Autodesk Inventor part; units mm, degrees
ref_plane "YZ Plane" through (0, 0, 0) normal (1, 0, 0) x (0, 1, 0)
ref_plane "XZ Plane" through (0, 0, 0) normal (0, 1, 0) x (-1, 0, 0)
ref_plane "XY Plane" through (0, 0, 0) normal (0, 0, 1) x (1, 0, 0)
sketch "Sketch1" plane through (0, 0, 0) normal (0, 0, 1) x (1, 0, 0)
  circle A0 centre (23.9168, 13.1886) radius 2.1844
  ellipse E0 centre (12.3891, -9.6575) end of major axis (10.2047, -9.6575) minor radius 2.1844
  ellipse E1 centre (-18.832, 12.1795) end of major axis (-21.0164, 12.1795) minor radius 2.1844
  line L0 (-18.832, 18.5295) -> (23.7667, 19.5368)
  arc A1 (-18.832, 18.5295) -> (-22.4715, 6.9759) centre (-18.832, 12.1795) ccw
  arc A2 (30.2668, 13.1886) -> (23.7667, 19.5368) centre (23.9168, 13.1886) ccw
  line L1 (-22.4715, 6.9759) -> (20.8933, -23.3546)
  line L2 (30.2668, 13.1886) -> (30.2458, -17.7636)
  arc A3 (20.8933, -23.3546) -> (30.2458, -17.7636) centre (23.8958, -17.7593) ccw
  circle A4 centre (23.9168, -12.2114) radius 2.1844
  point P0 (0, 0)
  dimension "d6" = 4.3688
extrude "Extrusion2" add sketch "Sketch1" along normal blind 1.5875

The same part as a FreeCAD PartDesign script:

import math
import FreeCAD as App
import Part
import Sketcher

V = App.Vector
Q = App.Units.Quantity

doc = App.newDocument("Part")
body = doc.addObject("PartDesign::Body", "Body")

# Sketch on XY plane
sketch1 = body.newObject("Sketcher::SketchObject", "Sketch")
sketch1.AttachmentSupport = (doc.getObject("XY_Plane"), [""])
sketch1.MapMode = "FlatFace"
sketch1.addGeometry([
    Part.LineSegment(V(23.7667, 19.5368, 0), V(-18.832, 18.5295, 0)),  # 0
    Part.ArcOfCircle(Part.Circle(V(-18.832, 12.1795, 0), V(0, 0, 1), 6.35), math.radians(90), math.radians(235.030303)),  # 1
    Part.LineSegment(V(-22.4715, 6.9759, 0), V(20.8933, -23.3546, 0)),  # 2
    Part.ArcOfCircle(Part.Circle(V(23.8958, -17.7593, 0), V(0, 0, 1), 6.349991), math.radians(-118.2185), math.radians(-0.038799)),  # 3
    Part.LineSegment(V(30.2458, -17.7636, 0), V(30.2668, 13.1886, 0)),  # 4
    Part.ArcOfCircle(Part.Circle(V(23.9168, 13.1886, 0), V(0, 0, 1), 6.35), math.radians(0), math.radians(91.354478)),  # 5
    Part.Ellipse(V(12.3891, -11.8419, 0), V(14.5735, -9.6575, 0), V(12.3891, -9.6575, 0)),  # 6
    Part.Circle(V(23.9168, -12.2114, 0), V(0, 0, 1), 2.1844),  # 7
    Part.Ellipse(V(-21.0164, 12.1795, 0), V(-18.832, 9.9951, 0), V(-18.832, 12.1795, 0)),  # 8
    Part.Circle(V(23.9168, 13.1886, 0), V(0, 0, 1), 2.1844),  # 9
], False)
sketch1.addConstraint([
    Sketcher.Constraint("Block", 6),
    Sketcher.Constraint("Block", 8),
    Sketcher.Constraint("Coincident", 0, 2, 1, 1),
    Sketcher.Constraint("Coincident", 1, 2, 2, 1),
    Sketcher.Constraint("Coincident", 2, 2, 3, 1),
    Sketcher.Constraint("Coincident", 3, 2, 4, 1),
    Sketcher.Constraint("Coincident", 4, 2, 5, 1),
    Sketcher.Constraint("Coincident", 5, 2, 0, 1),
    Sketcher.Constraint("Coincident", 9, 3, 5, 3),
    Sketcher.Constraint("Diameter", 7, Q("0.172 in")),
    Sketcher.Constraint("Diameter", 9, Q("0.172 in")),
    Sketcher.Constraint("Radius", 1, Q("0.25 in")),
    Sketcher.Constraint("Radius", 3, Q("0.25 in")),
    Sketcher.Constraint("Radius", 5, Q("0.25 in")),
    Sketcher.Constraint("DistanceY", 7, 3, 5, 3, Q("1 in")),
    Sketcher.Constraint("DistanceY", 7, 3, 4, 2, Q("1 in")),
    Sketcher.Constraint("DistanceX", 7, 3, 4, 2, Q("0.25 in")),
    Sketcher.Constraint("Distance", 4, Q("1.2186 in")),
    Sketcher.Constraint("DistanceY", -1, 1, 1, 3, Q("0.4795 in")),
    Sketcher.Constraint("DistanceX", -1, 1, 5, 3, Q("0.9416 in")),
    Sketcher.Constraint("DistanceX", 1, 2, -1, 1, Q("0.8847 in")),
    Sketcher.Constraint("DistanceX", -1, 1, 5, 2, Q("0.9357 in")),
    Sketcher.Constraint("DistanceX", 1, 3, 3, 3, Q("1.6822 in")),
    Sketcher.Constraint("DistanceY", 3, 3, 1, 3, Q("1.1787 in")),
    Sketcher.Constraint("DistanceX", 0, 2, 3, 3, Q("1.6822 in")),
    Sketcher.Constraint("DistanceY", 1, 2, 5, 3, Q("0.2446 in")),
    Sketcher.Constraint("DistanceX", 2, 2, 3, 3, Q("0.1182 in")),
    Sketcher.Constraint("DistanceY", 2, 2, 7, 3, Q("0.4387 in")),
])
pad1 = body.newObject("PartDesign::Pad", "Pad")
pad1.Profile = sketch1
pad1.Length = Q("0.0625 in")

doc.recompute()
